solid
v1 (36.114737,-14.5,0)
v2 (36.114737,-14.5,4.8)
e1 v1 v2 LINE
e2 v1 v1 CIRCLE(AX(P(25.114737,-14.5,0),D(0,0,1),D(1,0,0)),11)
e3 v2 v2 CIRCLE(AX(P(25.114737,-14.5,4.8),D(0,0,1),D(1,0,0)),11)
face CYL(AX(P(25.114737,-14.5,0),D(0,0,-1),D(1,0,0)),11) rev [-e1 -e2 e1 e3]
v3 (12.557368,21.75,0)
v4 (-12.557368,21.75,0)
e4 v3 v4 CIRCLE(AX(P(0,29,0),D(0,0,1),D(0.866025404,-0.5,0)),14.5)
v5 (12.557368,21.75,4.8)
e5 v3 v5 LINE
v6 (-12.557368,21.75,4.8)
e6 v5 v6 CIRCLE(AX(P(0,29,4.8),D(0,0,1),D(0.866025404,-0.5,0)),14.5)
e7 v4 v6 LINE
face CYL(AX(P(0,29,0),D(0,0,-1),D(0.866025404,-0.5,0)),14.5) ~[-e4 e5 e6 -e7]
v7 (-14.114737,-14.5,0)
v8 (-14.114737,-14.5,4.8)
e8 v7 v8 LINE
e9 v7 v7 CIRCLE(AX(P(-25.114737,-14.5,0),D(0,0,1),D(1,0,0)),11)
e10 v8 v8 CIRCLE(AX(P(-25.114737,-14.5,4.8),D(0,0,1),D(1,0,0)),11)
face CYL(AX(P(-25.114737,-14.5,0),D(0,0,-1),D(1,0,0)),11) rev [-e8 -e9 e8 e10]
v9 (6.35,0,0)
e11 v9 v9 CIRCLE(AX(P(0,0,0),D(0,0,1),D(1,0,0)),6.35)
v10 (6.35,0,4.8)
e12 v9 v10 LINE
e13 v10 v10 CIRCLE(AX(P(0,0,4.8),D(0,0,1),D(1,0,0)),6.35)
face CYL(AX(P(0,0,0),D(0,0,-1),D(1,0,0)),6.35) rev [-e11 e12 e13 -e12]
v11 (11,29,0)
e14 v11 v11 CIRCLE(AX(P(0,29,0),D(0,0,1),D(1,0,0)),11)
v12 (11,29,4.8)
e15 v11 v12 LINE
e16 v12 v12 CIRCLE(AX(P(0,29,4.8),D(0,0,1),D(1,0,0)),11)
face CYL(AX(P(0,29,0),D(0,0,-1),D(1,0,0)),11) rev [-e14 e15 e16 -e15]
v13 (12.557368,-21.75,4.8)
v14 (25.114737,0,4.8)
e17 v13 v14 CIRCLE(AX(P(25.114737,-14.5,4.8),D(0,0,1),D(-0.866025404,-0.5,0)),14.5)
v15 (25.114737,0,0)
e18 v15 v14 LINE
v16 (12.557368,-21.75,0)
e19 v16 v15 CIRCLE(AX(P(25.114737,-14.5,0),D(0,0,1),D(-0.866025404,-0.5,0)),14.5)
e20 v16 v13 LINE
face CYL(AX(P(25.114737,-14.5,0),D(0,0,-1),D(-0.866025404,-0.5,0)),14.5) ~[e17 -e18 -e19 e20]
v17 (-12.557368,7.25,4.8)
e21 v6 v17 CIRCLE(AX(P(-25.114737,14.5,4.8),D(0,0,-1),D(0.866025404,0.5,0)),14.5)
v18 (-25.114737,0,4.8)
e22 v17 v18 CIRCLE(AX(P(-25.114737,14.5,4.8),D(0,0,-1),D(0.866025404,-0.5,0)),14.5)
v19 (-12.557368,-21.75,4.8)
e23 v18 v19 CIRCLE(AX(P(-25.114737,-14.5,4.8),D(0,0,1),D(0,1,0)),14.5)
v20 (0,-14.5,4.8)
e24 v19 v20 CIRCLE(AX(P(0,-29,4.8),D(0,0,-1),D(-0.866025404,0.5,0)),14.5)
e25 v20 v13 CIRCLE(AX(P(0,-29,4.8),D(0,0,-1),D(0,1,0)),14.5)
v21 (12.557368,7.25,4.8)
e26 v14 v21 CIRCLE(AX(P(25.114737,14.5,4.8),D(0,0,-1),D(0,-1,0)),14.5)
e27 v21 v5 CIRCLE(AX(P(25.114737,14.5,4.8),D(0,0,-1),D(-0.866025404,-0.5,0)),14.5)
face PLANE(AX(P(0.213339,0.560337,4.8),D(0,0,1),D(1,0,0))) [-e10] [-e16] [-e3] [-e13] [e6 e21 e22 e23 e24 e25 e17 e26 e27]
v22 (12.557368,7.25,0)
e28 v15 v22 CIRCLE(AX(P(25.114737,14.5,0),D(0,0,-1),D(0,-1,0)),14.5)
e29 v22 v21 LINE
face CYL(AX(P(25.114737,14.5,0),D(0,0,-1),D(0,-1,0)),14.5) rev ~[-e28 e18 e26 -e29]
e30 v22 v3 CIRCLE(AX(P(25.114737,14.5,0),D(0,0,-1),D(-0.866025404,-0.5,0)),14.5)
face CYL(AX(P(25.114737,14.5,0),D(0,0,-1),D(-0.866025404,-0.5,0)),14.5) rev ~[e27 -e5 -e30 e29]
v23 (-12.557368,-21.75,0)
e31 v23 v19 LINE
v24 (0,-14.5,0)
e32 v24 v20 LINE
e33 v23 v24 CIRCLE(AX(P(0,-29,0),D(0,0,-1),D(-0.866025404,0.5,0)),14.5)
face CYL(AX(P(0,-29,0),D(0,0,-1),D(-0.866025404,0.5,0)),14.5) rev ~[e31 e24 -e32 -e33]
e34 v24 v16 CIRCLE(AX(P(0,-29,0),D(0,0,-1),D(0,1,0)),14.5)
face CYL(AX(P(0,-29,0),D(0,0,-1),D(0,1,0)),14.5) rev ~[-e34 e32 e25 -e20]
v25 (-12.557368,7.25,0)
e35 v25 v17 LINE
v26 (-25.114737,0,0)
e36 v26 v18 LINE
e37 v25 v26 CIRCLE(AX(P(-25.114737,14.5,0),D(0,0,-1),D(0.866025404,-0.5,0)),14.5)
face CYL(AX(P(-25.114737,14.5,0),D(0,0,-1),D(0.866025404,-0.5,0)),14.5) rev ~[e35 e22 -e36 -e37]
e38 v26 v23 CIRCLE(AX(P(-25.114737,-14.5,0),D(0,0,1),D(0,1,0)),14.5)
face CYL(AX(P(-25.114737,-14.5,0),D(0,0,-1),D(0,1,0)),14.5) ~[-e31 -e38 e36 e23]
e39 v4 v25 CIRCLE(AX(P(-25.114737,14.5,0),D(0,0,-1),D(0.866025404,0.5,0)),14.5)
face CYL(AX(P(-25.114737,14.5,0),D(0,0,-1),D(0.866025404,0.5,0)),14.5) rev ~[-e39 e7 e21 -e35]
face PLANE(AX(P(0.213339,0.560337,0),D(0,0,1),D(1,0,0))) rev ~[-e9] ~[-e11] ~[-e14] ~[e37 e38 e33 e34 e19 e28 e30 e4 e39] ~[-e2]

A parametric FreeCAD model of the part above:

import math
import FreeCAD as App
import Part
import Sketcher
from FreeCAD import Vector
Q = App.Units.Quantity

doc = App.newDocument("Part")
body = doc.addObject("PartDesign::Body", "Body")

# Sketch on XY plane
sketch1 = doc.addObject("Sketcher::SketchObject", "Sketch")
body.addObject(sketch1)
sketch1.AttachmentSupport = (doc.XY_Plane, [""])
sketch1.MapMode = "FlatFace"
sketch1.addGeometry(Part.ArcOfCircle(Part.Circle(Vector(-25.114737, 14.5, 0), Vector(0, 0, 1), 14.5), math.radians(-30), math.radians(30)), False)
sketch1.addGeometry(Part.ArcOfCircle(Part.Circle(Vector(-25.114737, 14.5, 0), Vector(0, 0, 1), 14.5), math.radians(-90), math.radians(-30)), False)
sketch1.addGeometry(Part.ArcOfCircle(Part.Circle(Vector(-25.114737, -14.5, 0), Vector(0, 0, 1), 14.5), math.radians(90), math.radians(330)), False)
sketch1.addGeometry(Part.ArcOfCircle(Part.Circle(Vector(0, -29, 0), Vector(0, 0, 1), 14.5), math.radians(90), math.radians(150)), False)
sketch1.addGeometry(Part.ArcOfCircle(Part.Circle(Vector(0, -29, 0), Vector(0, 0, 1), 14.5), math.radians(30), math.radians(90)), False)
sketch1.addGeometry(Part.ArcOfCircle(Part.Circle(Vector(25.114737, -14.5, 0), Vector(0, 0, 1), 14.5), math.radians(-150), math.radians(90)), False)
sketch1.addGeometry(Part.ArcOfCircle(Part.Circle(Vector(25.114737, 14.5, 0), Vector(0, 0, 1), 14.5), math.radians(-150), math.radians(-90)), False)
sketch1.addGeometry(Part.ArcOfCircle(Part.Circle(Vector(25.114737, 14.5, 0), Vector(0, 0, 1), 14.5), math.radians(150), math.radians(210)), False)
sketch1.addGeometry(Part.ArcOfCircle(Part.Circle(Vector(0, 29, 0), Vector(0, 0, 1), 14.5), math.radians(-30), math.radians(210)), False)
sketch1.addGeometry(Part.Circle(Vector(-25.114737, -14.5, 0), Vector(0, 0, 1), 11), False)
sketch1.addGeometry(Part.Circle(Vector(25.114737, -14.5, 0), Vector(0, 0, 1), 11), False)
sketch1.addGeometry(Part.Circle(Vector(0, 0, 0), Vector(0, 0, 1), 6.35), False)
sketch1.addGeometry(Part.Circle(Vector(0, 29, 0), Vector(0, 0, 1), 11), False)
sketch1.addConstraint(Sketcher.Constraint("Tangent", 0, 1, 1, 2))
sketch1.addConstraint(Sketcher.Constraint("Tangent", 1, 1, 2, 1))
sketch1.addConstraint(Sketcher.Constraint("Tangent", 2, 2, 3, 2))
sketch1.addConstraint(Sketcher.Constraint("Tangent", 3, 1, 4, 2))
sketch1.addConstraint(Sketcher.Constraint("Tangent", 4, 1, 5, 1))
sketch1.addConstraint(Sketcher.Constraint("Tangent", 5, 2, 6, 2))
sketch1.addConstraint(Sketcher.Constraint("Tangent", 6, 1, 7, 2))
sketch1.addConstraint(Sketcher.Constraint("Tangent", 7, 1, 8, 1))
sketch1.addConstraint(Sketcher.Constraint("Tangent", 8, 2, 0, 2))
sketch1.addConstraint(Sketcher.Constraint("Coincident", 11, 3, -1, 1))
sketch1.addConstraint(Sketcher.Constraint("Coincident", 9, 3, 2, 3))
sketch1.addConstraint(Sketcher.Constraint("Coincident", 10, 3, 5, 3))
sketch1.addConstraint(Sketcher.Constraint("Coincident", 12, 3, 8, 3))
sketch1.addConstraint(Sketcher.Constraint("Equal", 0, 1))
sketch1.addConstraint(Sketcher.Constraint("Equal", 1, 2))
sketch1.addConstraint(Sketcher.Constraint("Equal", 2, 3))
sketch1.addConstraint(Sketcher.Constraint("Equal", 3, 4))
sketch1.addConstraint(Sketcher.Constraint("Equal", 4, 5))
sketch1.addConstraint(Sketcher.Constraint("Equal", 5, 6))
sketch1.addConstraint(Sketcher.Constraint("Equal", 6, 7))
sketch1.addConstraint(Sketcher.Constraint("Equal", 7, 8))
sketch1.addConstraint(Sketcher.Constraint("Equal", 9, 10))
sketch1.addConstraint(Sketcher.Constraint("Equal", 10, 12))
sketch1.addConstraint(Sketcher.Constraint("Symmetric", 0, 3, 5, 3, -1, 1))
sketch1.addConstraint(Sketcher.Constraint("Symmetric", 2, 3, 5, 3, -2))
sketch1.addConstraint(Sketcher.Constraint("Symmetric", 0, 1, 6, 1, -2))
sketch1.addConstraint(Sketcher.Constraint("PointOnObject", 3, 1, -2))
sketch1.addConstraint(Sketcher.Constraint("Horizontal", 10, 3, 3, 1))
sketch1.addConstraint(Sketcher.Constraint("Vertical", 0, 1, 2, 2))
sketch1.addConstraint(Sketcher.Constraint("Diameter", 9, Q("22 mm")))
sketch1.addConstraint(Sketcher.Constraint("Diameter", 11, Q("12.7 mm")))
sketch1.addConstraint(Sketcher.Constraint("Radius", 0, Q("14.5 mm")))
pad1 = doc.addObject("PartDesign::Pad", "Pad")
body.addObject(pad1)
pad1.Profile = sketch1
pad1.Length = 4.8

doc.recompute()
